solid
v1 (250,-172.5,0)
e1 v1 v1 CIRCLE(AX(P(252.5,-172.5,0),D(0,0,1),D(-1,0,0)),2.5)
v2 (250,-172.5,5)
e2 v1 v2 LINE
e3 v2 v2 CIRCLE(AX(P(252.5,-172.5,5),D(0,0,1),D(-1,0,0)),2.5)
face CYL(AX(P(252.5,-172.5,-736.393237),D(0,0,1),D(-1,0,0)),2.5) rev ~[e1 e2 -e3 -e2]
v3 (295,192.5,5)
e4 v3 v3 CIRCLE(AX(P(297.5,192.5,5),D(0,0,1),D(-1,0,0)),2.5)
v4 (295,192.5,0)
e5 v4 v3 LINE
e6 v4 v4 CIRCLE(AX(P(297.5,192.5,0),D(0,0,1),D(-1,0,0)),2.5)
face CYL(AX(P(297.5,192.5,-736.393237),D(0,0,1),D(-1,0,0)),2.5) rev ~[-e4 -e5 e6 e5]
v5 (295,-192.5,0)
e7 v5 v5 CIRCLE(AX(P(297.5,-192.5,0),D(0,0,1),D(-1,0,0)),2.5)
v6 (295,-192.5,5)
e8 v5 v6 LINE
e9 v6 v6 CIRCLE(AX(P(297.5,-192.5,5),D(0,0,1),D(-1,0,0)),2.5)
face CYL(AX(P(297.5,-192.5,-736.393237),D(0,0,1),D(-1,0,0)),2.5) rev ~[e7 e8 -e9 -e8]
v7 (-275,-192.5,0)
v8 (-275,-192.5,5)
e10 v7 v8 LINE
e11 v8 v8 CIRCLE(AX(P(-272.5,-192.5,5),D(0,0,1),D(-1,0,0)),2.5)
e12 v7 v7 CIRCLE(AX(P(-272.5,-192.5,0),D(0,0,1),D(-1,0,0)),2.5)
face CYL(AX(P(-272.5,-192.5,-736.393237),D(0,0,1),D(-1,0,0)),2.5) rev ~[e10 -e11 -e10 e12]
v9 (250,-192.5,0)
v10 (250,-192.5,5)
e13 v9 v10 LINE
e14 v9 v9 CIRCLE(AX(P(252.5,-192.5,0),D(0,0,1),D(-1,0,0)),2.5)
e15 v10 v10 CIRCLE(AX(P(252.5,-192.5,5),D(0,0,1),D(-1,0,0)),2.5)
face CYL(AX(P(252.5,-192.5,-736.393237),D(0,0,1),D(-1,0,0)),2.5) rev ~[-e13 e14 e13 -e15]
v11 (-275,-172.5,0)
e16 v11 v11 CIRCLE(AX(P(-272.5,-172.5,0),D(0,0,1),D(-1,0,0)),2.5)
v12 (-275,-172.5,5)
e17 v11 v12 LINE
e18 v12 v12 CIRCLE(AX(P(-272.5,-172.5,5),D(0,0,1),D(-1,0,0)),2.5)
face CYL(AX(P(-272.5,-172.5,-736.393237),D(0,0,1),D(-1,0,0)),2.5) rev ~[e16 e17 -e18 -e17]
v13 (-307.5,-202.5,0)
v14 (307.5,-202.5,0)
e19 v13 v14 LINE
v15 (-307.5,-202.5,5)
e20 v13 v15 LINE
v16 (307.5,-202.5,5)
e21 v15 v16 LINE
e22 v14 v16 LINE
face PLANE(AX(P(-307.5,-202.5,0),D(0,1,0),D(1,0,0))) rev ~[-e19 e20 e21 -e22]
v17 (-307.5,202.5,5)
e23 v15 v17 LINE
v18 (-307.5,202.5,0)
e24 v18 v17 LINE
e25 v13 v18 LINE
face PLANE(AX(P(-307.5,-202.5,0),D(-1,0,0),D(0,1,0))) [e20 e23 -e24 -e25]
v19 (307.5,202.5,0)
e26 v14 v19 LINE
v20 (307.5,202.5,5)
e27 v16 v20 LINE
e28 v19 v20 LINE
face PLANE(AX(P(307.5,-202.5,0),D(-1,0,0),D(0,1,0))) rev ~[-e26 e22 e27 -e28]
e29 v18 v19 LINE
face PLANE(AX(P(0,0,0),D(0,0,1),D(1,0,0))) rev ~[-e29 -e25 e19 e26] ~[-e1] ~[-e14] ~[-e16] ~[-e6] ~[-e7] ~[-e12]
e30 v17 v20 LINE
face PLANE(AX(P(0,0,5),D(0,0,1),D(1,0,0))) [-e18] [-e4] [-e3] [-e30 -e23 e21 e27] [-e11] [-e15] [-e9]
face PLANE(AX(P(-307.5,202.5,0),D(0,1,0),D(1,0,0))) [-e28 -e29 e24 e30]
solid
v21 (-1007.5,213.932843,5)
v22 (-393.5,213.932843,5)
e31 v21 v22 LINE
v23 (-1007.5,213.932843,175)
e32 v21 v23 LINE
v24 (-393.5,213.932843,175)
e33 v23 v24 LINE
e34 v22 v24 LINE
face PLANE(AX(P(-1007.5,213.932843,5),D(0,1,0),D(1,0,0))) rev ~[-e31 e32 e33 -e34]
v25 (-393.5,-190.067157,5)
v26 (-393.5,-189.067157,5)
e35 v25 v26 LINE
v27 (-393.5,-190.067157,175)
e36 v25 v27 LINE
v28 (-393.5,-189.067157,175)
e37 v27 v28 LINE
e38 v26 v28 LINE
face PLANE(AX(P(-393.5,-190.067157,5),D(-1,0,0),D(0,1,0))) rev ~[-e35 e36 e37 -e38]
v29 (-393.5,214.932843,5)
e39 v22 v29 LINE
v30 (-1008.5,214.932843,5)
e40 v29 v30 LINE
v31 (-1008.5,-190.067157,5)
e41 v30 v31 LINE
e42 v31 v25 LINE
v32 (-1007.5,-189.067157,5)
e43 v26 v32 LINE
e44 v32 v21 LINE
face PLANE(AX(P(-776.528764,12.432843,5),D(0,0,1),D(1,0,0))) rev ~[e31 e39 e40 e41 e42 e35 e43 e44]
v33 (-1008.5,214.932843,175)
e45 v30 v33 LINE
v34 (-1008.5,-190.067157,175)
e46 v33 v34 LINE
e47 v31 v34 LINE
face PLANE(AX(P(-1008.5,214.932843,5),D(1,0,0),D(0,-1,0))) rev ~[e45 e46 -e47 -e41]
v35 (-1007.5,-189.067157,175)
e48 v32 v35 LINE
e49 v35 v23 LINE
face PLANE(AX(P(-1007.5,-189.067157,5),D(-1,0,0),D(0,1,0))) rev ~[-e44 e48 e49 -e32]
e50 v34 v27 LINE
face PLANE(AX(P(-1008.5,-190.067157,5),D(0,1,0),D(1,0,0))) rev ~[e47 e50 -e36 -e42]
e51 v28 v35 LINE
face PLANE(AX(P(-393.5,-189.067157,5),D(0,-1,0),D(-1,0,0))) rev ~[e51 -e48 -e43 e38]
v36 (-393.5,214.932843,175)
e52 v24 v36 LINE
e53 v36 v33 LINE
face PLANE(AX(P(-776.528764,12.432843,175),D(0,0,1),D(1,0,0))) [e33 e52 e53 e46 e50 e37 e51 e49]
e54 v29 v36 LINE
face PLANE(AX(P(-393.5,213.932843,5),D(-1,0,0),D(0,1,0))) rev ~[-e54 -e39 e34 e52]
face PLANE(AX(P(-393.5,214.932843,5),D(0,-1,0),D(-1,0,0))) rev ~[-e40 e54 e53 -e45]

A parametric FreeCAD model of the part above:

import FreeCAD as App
import Part
import Sketcher
Q = App.Units.Quantity

doc = App.newDocument("Part")
params = doc.addObject("Spreadsheet::Sheet", "Params")
for row, (alias, value) in enumerate([
    ("sketch1_width", "615 mm"),
    ("sketch1_height", "405 mm"),
    ("pad1_length", "5 mm"),
    ("sketch2_diameter", "5 mm"),
    ("hole_diameter", "5 mm"),
    ("sketch3_diameter", "5 mm"),
    ("hole2_diameter", "5 mm"),
    ("sketch4_diameter", "5 mm"),
    ("hole3_diameter", "5 mm"),
    ("sketch5_diameter", "5 mm"),
    ("hole4_diameter", "5 mm"),
    ("sketch6_diameter", "5 mm"),
    ("hole5_diameter", "5 mm"),
    ("sketch7_diameter", "5 mm"),
    ("hole6_diameter", "5 mm"),
    ("sketch8_width", "615 mm"),
    ("sketch8_width2", "614 mm"),
    ("sketch8_height", "1 mm"),
    ("sketch8_height2", "403 mm"),
    ("pad2_length", "170 mm"),
], start=1):
    params.set(f"A{row}", alias)
    params.set(f"B{row}", "=" + value)
    params.setAlias(f"B{row}", alias)

body = doc.addObject("PartDesign::Body", "Body")

# Sketch on XY plane
sketch1 = doc.addObject("Sketcher::SketchObject", "Sketch")
body.addObject(sketch1)
sketch1.AttachmentSupport = (doc.XY_Plane, [""])
sketch1.MapMode = "FlatFace"
sketch1.addGeometry([
    Part.LineSegment(App.Vector(-308, 202, 0), App.Vector(-308, -202, 0)),
    Part.LineSegment(App.Vector(-308, -202, 0), App.Vector(308, -202, 0)),
    Part.LineSegment(App.Vector(308, -202, 0), App.Vector(308, 202, 0)),
    Part.LineSegment(App.Vector(308, 202, 0), App.Vector(-308, 202, 0)),
], False)
sketch1.addConstraint([
    Sketcher.Constraint("Coincident", 0, 2, 1, 1),
    Sketcher.Constraint("Coincident", 1, 2, 2, 1),
    Sketcher.Constraint("Coincident", 2, 2, 3, 1),
    Sketcher.Constraint("Coincident", 3, 2, 0, 1),
    Sketcher.Constraint("Vertical", 0),
    Sketcher.Constraint("Horizontal", 1),
    Sketcher.Constraint("Vertical", 2),
    Sketcher.Constraint("Horizontal", 3),
    Sketcher.Constraint("Symmetric", 0, 2, 2, 2, -1, 1),
    Sketcher.Constraint("DistanceX", 1, 1, 1, 2, Q("615 mm")),
    Sketcher.Constraint("DistanceY", 0, 2, 0, 1, Q("405 mm")),
])
sketch1.setExpression("Constraints[9]", "Params.sketch1_width")
sketch1.setExpression("Constraints[10]", "Params.sketch1_height")
pad1 = doc.addObject("PartDesign::Pad", "Pad")
body.addObject(pad1)
pad1.Profile = sketch1
pad1.setExpression("Length", "Params.pad1_length")

# Sketch on XY plane
sketch2 = doc.addObject("Sketcher::SketchObject", "Sketch001")
body.addObject(sketch2)
sketch2.AttachmentSupport = (doc.XY_Plane, [""])
sketch2.MapMode = "FlatFace"
sketch2.addGeometry(Part.Circle(App.Vector(-272.5, -192.5, 0), App.Vector(0, 0, 1), 2.5), False)
sketch2.addConstraint([
    Sketcher.Constraint("Diameter", 0, Q("5 mm")),
    Sketcher.Constraint("DistanceX", 0, 3, -1, 1, Q("272.5 mm")),
    Sketcher.Constraint("DistanceY", 0, 3, -1, 1, Q("192.5 mm")),
])
sketch2.setExpression("Constraints[0]", "Params.sketch2_diameter")
doc.recompute()
hole = doc.addObject("PartDesign::Hole", "Hole")
body.addObject(hole)
hole.Profile = sketch2
hole.ThreadType = "None"
hole.setExpression("Diameter", "Params.hole_diameter")
hole.DepthType = "ThroughAll"
hole.Reversed = True

# Sketch on XY plane
sketch3 = doc.addObject("Sketcher::SketchObject", "Sketch002")
body.addObject(sketch3)
sketch3.AttachmentSupport = (doc.XY_Plane, [""])
sketch3.MapMode = "FlatFace"
sketch3.addGeometry(Part.Circle(App.Vector(-272.5, -172.5, 0), App.Vector(0, 0, 1), 2.5), False)
sketch3.addConstraint([
    Sketcher.Constraint("Diameter", 0, Q("5 mm")),
    Sketcher.Constraint("DistanceX", 0, 3, -1, 1, Q("272.5 mm")),
    Sketcher.Constraint("DistanceY", 0, 3, -1, 1, Q("172.5 mm")),
])
sketch3.setExpression("Constraints[0]", "Params.sketch3_diameter")
doc.recompute()
hole2 = doc.addObject("PartDesign::Hole", "Hole001")
body.addObject(hole2)
hole2.Profile = sketch3
hole2.ThreadType = "None"
hole2.setExpression("Diameter", "Params.hole2_diameter")
hole2.DepthType = "ThroughAll"
hole2.Reversed = True

# Sketch on XY plane
sketch4 = doc.addObject("Sketcher::SketchObject", "Sketch003")
body.addObject(sketch4)
sketch4.AttachmentSupport = (doc.XY_Plane, [""])
sketch4.MapMode = "FlatFace"
sketch4.addGeometry(Part.Circle(App.Vector(252.5, -192.5, 0), App.Vector(0, 0, 1), 2.5), False)
sketch4.addConstraint([
    Sketcher.Constraint("Diameter", 0, Q("5 mm")),
    Sketcher.Constraint("DistanceX", -1, 1, 0, 3, Q("252.5 mm")),
    Sketcher.Constraint("DistanceY", 0, 3, -1, 1, Q("192.5 mm")),
])
sketch4.setExpression("Constraints[0]", "Params.sketch4_diameter")
doc.recompute()
hole3 = doc.addObject("PartDesign::Hole", "Hole002")
body.addObject(hole3)
hole3.Profile = sketch4
hole3.ThreadType = "None"
hole3.setExpression("Diameter", "Params.hole3_diameter")
hole3.DepthType = "ThroughAll"
hole3.Reversed = True

# Sketch on XY plane
sketch5 = doc.addObject("Sketcher::SketchObject", "Sketch004")
body.addObject(sketch5)
sketch5.AttachmentSupport = (doc.XY_Plane, [""])
sketch5.MapMode = "FlatFace"
sketch5.addGeometry(Part.Circle(App.Vector(252.5, -172.5, 0), App.Vector(0, 0, 1), 2.5), False)
sketch5.addConstraint([
    Sketcher.Constraint("Diameter", 0, Q("5 mm")),
    Sketcher.Constraint("DistanceX", -1, 1, 0, 3, Q("252.5 mm")),
    Sketcher.Constraint("DistanceY", 0, 3, -1, 1, Q("172.5 mm")),
])
sketch5.setExpression("Constraints[0]", "Params.sketch5_diameter")
doc.recompute()
hole4 = doc.addObject("PartDesign::Hole", "Hole003")
body.addObject(hole4)
hole4.Profile = sketch5
hole4.ThreadType = "None"
hole4.setExpression("Diameter", "Params.hole4_diameter")
hole4.DepthType = "ThroughAll"
hole4.Reversed = True

# Sketch on XY plane
sketch6 = doc.addObject("Sketcher::SketchObject", "Sketch005")
body.addObject(sketch6)
sketch6.AttachmentSupport = (doc.XY_Plane, [""])
sketch6.MapMode = "FlatFace"
sketch6.addGeometry(Part.Circle(App.Vector(297.5, 192.5, 0), App.Vector(0, 0, 1), 2.5), False)
sketch6.addConstraint([
    Sketcher.Constraint("Diameter", 0, Q("5 mm")),
    Sketcher.Constraint("DistanceX", -1, 1, 0, 3, Q("297.5 mm")),
    Sketcher.Constraint("DistanceY", -1, 1, 0, 3, Q("192.5 mm")),
])
sketch6.setExpression("Constraints[0]", "Params.sketch6_diameter")
doc.recompute()
hole5 = doc.addObject("PartDesign::Hole", "Hole004")
body.addObject(hole5)
hole5.Profile = sketch6
hole5.ThreadType = "None"
hole5.setExpression("Diameter", "Params.hole5_diameter")
hole5.DepthType = "ThroughAll"
hole5.Reversed = True

# Sketch on XY plane
sketch7 = doc.addObject("Sketcher::SketchObject", "Sketch006")
body.addObject(sketch7)
sketch7.AttachmentSupport = (doc.XY_Plane, [""])
sketch7.MapMode = "FlatFace"
sketch7.addGeometry(Part.Circle(App.Vector(297.5, -192.5, 0), App.Vector(0, 0, 1), 2.5), False)
sketch7.addConstraint([
    Sketcher.Constraint("Diameter", 0, Q("5 mm")),
    Sketcher.Constraint("DistanceX", -1, 1, 0, 3, Q("297.5 mm")),
    Sketcher.Constraint("DistanceY", 0, 3, -1, 1, Q("192.5 mm")),
])
sketch7.setExpression("Constraints[0]", "Params.sketch7_diameter")
doc.recompute()
hole6 = doc.addObject("PartDesign::Hole", "Hole005")
body.addObject(hole6)
hole6.Profile = sketch7
hole6.ThreadType = "None"
hole6.setExpression("Diameter", "Params.hole6_diameter")
hole6.DepthType = "ThroughAll"
hole6.Reversed = True
body2 = doc.addObject("PartDesign::Body", "Body001")

# Sketch on XY plane
sketch8 = doc.addObject("Sketcher::SketchObject", "Sketch007")
body2.addObject(sketch8)
sketch8.AttachmentSupport = (doc.getObject("XY_Plane001"), [""])
sketch8.MapMode = "FlatFace"
sketch8.AttachmentOffset = App.Placement(App.Vector(0, 0, 5), App.Rotation())
sketch8.addGeometry([
    Part.LineSegment(App.Vector(-1008.5, -190.1, 0), App.Vector(-393.5, -190.1, 0)),  # 0
    Part.LineSegment(App.Vector(-393.5, -190.1, 0), App.Vector(-393.5, -189.1, 0)),  # 1
    Part.LineSegment(App.Vector(-393.5, -189.1, 0), App.Vector(-1007.5, -189.1, 0)),  # 2
    Part.LineSegment(App.Vector(-1007.5, -189.1, 0), App.Vector(-1007.5, 213.9, 0)),  # 3
    Part.LineSegment(App.Vector(-1007.5, 213.9, 0), App.Vector(-393.5, 213.9, 0)),  # 4
    Part.LineSegment(App.Vector(-393.5, 213.9, 0), App.Vector(-393.5, 214.9, 0)),  # 5
    Part.LineSegment(App.Vector(-393.5, 214.9, 0), App.Vector(-1008.5, 214.9, 0)),  # 6
    Part.LineSegment(App.Vector(-1008.5, 214.9, 0), App.Vector(-1008.5, -190.1, 0)),  # 7
], False)
sketch8.addConstraint([
    Sketcher.Constraint("Coincident", 0, 2, 1, 1),
    Sketcher.Constraint("Coincident", 1, 2, 2, 1),
    Sketcher.Constraint("Coincident", 2, 2, 3, 1),
    Sketcher.Constraint("Coincident", 3, 2, 4, 1),
    Sketcher.Constraint("Coincident", 4, 2, 5, 1),
    Sketcher.Constraint("Coincident", 5, 2, 6, 1),
    Sketcher.Constraint("Coincident", 6, 2, 7, 1),
    Sketcher.Constraint("Coincident", 7, 2, 0, 1),
    Sketcher.Constraint("Horizontal", 0),
    Sketcher.Constraint("Vertical", 1),
    Sketcher.Constraint("Horizontal", 2),
    Sketcher.Constraint("Vertical", 3),
    Sketcher.Constraint("Horizontal", 4),
    Sketcher.Constraint("Vertical", 5),
    Sketcher.Constraint("Horizontal", 6),
    Sketcher.Constraint("Vertical", 7),
    Sketcher.Constraint("Vertical", 1, 2, 4, 2),
    Sketcher.Constraint("Equal", 1, 5),
    Sketcher.Constraint("DistanceX", 0, 1, 0, 2, Q("615 mm")),
    Sketcher.Constraint("DistanceX", 2, 2, 2, 1, Q("614 mm")),
    Sketcher.Constraint("DistanceY", 1, 1, 1, 2, Q("1 mm")),
    Sketcher.Constraint("DistanceY", 3, 1, 3, 2, Q("403 mm")),
    Sketcher.Constraint("DistanceX", 0, 2, -1, 1, Q("393.5 mm")),
    Sketcher.Constraint("DistanceY", 0, 2, -1, 1, Q("190.067157 mm")),
])
sketch8.setExpression("Constraints[18]", "Params.sketch8_width")
sketch8.setExpression("Constraints[19]", "Params.sketch8_width2")
sketch8.setExpression("Constraints[20]", "Params.sketch8_height")
sketch8.setExpression("Constraints[21]", "Params.sketch8_height2")
pad2 = doc.addObject("PartDesign::Pad", "Pad001")
body2.addObject(pad2)
pad2.Profile = sketch8
pad2.setExpression("Length", "Params.pad2_length")

doc.recompute()
